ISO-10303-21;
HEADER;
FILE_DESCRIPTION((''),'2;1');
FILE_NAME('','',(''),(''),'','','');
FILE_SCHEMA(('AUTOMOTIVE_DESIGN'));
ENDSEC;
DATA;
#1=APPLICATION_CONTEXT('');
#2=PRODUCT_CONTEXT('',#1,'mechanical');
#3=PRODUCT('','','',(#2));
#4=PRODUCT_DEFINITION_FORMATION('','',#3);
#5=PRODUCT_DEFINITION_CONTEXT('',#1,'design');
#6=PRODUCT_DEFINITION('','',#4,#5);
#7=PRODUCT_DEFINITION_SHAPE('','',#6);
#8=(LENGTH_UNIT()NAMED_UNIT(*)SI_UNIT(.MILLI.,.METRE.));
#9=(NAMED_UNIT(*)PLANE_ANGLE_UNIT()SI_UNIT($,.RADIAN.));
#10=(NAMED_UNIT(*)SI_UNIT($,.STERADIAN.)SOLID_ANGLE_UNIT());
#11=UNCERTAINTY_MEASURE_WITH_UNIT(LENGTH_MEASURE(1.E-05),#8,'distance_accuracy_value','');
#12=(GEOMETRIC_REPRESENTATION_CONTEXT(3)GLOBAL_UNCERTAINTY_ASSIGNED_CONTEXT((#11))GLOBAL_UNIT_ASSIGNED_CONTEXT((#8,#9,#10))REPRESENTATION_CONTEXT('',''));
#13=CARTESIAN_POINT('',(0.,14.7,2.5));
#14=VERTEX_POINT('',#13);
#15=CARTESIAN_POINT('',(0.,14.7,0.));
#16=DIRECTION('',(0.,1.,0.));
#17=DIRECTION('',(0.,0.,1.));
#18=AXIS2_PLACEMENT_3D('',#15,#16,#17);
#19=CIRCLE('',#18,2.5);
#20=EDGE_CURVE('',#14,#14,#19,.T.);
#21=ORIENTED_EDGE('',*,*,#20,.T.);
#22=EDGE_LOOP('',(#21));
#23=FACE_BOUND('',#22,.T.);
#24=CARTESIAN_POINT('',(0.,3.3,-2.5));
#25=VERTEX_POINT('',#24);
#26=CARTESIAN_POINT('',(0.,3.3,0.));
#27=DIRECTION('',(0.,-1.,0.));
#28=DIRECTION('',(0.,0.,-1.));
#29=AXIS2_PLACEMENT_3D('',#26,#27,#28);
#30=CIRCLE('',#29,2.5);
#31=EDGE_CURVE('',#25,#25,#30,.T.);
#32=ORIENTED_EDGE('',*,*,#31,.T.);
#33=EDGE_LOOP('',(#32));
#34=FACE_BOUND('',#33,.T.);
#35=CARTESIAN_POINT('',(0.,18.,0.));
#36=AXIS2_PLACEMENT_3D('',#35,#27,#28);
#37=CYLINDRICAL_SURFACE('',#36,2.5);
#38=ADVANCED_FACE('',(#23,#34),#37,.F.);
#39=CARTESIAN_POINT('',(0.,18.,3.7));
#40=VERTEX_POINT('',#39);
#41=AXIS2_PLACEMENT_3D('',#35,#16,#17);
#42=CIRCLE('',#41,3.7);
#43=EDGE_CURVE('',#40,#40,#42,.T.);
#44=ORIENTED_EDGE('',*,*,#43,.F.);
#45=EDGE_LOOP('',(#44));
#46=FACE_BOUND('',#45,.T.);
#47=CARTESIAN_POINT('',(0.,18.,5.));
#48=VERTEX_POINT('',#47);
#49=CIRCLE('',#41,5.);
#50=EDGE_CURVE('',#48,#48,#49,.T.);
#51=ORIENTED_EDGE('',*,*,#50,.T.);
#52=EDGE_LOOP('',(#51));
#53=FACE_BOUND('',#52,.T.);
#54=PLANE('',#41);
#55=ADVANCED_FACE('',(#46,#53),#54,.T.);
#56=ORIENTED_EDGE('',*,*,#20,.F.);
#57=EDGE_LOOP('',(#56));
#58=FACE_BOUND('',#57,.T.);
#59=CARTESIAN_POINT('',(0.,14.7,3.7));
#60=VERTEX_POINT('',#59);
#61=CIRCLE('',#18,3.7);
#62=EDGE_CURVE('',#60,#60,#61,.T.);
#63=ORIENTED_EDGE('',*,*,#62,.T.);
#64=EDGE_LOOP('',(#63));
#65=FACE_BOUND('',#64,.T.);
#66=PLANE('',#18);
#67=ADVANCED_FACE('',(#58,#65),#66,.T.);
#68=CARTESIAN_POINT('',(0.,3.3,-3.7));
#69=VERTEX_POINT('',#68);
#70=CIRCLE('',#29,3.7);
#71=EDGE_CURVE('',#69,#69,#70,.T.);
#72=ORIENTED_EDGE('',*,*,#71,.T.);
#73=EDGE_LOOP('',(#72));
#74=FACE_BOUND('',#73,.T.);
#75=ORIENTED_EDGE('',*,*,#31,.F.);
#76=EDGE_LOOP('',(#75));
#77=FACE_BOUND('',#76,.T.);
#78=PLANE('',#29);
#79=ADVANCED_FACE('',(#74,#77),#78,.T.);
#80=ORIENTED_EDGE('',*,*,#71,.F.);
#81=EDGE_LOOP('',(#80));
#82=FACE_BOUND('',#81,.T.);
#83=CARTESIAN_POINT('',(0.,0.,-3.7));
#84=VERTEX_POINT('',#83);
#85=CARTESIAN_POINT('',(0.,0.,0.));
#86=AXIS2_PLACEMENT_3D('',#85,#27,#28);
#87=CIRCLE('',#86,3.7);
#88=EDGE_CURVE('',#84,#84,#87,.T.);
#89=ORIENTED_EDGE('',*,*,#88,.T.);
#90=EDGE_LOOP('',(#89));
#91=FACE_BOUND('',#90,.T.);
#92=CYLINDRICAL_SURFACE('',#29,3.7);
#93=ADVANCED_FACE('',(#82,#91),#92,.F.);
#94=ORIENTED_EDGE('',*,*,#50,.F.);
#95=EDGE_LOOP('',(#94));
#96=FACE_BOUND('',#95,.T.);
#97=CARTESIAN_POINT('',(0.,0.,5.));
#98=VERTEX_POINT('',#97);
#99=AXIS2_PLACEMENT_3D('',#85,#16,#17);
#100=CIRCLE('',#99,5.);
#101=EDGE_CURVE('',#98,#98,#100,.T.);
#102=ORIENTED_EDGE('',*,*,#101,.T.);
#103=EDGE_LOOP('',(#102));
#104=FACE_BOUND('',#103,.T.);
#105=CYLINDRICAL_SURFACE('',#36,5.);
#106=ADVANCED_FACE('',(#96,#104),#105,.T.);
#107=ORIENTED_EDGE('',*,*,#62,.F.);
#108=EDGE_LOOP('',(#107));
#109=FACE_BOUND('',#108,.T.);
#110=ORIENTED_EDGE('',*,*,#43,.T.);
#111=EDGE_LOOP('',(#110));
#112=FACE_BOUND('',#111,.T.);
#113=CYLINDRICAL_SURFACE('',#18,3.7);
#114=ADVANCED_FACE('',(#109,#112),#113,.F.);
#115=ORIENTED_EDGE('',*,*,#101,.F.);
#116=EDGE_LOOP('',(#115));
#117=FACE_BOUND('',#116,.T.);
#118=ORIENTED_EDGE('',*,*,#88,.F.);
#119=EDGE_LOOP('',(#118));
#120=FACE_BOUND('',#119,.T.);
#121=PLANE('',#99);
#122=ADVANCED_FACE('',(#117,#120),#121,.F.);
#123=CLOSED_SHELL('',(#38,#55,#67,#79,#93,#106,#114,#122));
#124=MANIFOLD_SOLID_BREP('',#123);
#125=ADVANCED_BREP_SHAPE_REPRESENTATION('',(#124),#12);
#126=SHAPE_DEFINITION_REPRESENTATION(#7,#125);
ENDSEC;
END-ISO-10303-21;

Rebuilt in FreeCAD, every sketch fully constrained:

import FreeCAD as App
import Part
import Sketcher
Q = App.Units.Quantity

doc = App.newDocument("Part")
body = doc.addObject("PartDesign::Body", "Body")

# Sketch on XZ plane
sketch1 = body.newObject("Sketcher::SketchObject", "Sketch")
sketch1.AttachmentSupport = (doc.getObject("XZ_Plane"), [""])
sketch1.MapMode = "FlatFace"
sketch1.addGeometry(Part.Circle(App.Vector(0, 0, 0), App.Vector(0, 0, 1), 5), False)
sketch1.addGeometry(Part.Circle(App.Vector(0, 0, 0), App.Vector(0, 0, 1), 2.5), False)
sketch1.addConstraint(Sketcher.Constraint("Coincident", 0, 3, -1, 1))
sketch1.addConstraint(Sketcher.Constraint("Coincident", 1, 3, -1, 1))
sketch1.addConstraint(Sketcher.Constraint("Diameter", 0, Q("10 mm")))
sketch1.addConstraint(Sketcher.Constraint("Diameter", 1, Q("5 mm")))
pad1 = body.newObject("PartDesign::Pad", "Pad")
pad1.Profile = sketch1
pad1.Length = 18
pad1.Reversed = True

# Sketch on XZ plane
sketch2 = body.newObject("Sketcher::SketchObject", "Sketch001")
sketch2.AttachmentSupport = (doc.getObject("XZ_Plane"), [""])
sketch2.MapMode = "FlatFace"
sketch2.addGeometry(Part.Circle(App.Vector(0, 0, 0), App.Vector(0, 0, 1), 3.7), False)
sketch2.addGeometry(Part.Circle(App.Vector(0, 0, 0), App.Vector(0, 0, 1), 2.5), False)
sketch2.addConstraint(Sketcher.Constraint("Coincident", 0, 3, -1, 1))
sketch2.addConstraint(Sketcher.Constraint("Coincident", 1, 3, -1, 1))
sketch2.addConstraint(Sketcher.Constraint("Diameter", 1, Q("5 mm")))
sketch2.addConstraint(Sketcher.Constraint("Diameter", 0, Q("7.4 mm")))
pocket1 = body.newObject("PartDesign::Pocket", "Pocket")
pocket1.Profile = sketch2
pocket1.Length = 3.3

# Sketch on XZ plane
sketch3 = body.newObject("Sketcher::SketchObject", "Sketch002")
sketch3.AttachmentSupport = (doc.getObject("XZ_Plane"), [""])
sketch3.MapMode = "FlatFace"
sketch3.AttachmentOffset = App.Placement(App.Vector(0, 0, -14.7), App.Rotation())
sketch3.addGeometry(Part.Circle(App.Vector(0, 0, 0), App.Vector(0, 0, 1), 3.7), False)
sketch3.addGeometry(Part.Circle(App.Vector(0, 0, 0), App.Vector(0, 0, 1), 2.5), False)
sketch3.addConstraint(Sketcher.Constraint("Coincident", 0, 3, -1, 1))
sketch3.addConstraint(Sketcher.Constraint("Coincident", 1, 3, -1, 1))
sketch3.addConstraint(Sketcher.Constraint("Diameter", 1, Q("5 mm")))
sketch3.addConstraint(Sketcher.Constraint("Diameter", 0, Q("7.4 mm")))
pocket2 = body.newObject("PartDesign::Pocket", "Pocket001")
pocket2.Profile = sketch3
pocket2.Length = 3.3

doc.recompute()
